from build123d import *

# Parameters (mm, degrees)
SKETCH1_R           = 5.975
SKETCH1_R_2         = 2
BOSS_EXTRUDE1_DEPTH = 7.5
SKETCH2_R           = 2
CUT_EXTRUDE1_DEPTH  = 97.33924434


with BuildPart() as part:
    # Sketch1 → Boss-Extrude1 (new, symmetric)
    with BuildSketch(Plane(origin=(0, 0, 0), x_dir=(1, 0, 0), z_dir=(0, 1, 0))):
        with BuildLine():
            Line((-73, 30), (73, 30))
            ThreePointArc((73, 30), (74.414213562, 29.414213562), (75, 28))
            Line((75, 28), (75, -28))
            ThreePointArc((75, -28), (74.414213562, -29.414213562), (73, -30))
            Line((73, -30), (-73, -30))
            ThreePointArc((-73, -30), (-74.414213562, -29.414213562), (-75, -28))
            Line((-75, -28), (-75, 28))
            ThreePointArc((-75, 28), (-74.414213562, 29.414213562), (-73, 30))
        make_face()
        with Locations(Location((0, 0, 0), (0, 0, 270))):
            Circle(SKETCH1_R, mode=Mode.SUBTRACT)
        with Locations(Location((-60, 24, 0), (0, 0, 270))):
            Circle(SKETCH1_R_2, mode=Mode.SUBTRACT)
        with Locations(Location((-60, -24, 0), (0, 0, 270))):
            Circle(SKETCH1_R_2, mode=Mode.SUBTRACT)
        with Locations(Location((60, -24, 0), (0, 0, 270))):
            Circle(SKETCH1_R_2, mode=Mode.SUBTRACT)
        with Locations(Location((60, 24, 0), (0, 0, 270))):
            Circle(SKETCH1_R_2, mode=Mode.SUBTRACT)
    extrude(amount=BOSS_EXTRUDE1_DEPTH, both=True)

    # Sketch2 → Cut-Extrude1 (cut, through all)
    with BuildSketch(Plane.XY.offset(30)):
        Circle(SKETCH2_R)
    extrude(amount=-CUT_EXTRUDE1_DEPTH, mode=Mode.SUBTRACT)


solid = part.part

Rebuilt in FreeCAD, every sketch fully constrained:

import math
import FreeCAD as App
import Part
import Sketcher
from FreeCAD import Vector
Q = App.Units.Quantity

doc = App.newDocument("Part")
body = doc.addObject("PartDesign::Body", "Body")

# Sketch on XZ plane
sketch1 = body.newObject("Sketcher::SketchObject", "Sketch")
sketch1.AttachmentSupport = (doc.getObject("XZ_Plane"), [""])
sketch1.MapMode = "FlatFace"
sketch1.addGeometry([
    Part.LineSegment(Vector(73, -30, 0), Vector(-73, -30, 0)),  # 0
    Part.ArcOfCircle(Part.Circle(Vector(-73, -28, 0), Vector(0, 0, 1), 2), math.radians(-180), math.radians(-90)),  # 1
    Part.LineSegment(Vector(-75, -28, 0), Vector(-75, 28, 0)),  # 2
    Part.ArcOfCircle(Part.Circle(Vector(-73, 28, 0), Vector(0, 0, 1), 2), math.radians(90), math.radians(180)),  # 3
    Part.LineSegment(Vector(-73, 30, 0), Vector(73, 30, 0)),  # 4
    Part.ArcOfCircle(Part.Circle(Vector(73, 28, 0), Vector(0, 0, 1), 2), math.radians(0), math.radians(90)),  # 5
    Part.LineSegment(Vector(75, 28, 0), Vector(75, -28, 0)),  # 6
    Part.ArcOfCircle(Part.Circle(Vector(73, -28, 0), Vector(0, 0, 1), 2), math.radians(-90), math.radians(0)),  # 7
    Part.Circle(Vector(60, 24, 0), Vector(0, 0, 1), 2),  # 8
    Part.Circle(Vector(-60, 24, 0), Vector(0, 0, 1), 2),  # 9
    Part.Circle(Vector(60, -24, 0), Vector(0, 0, 1), 2),  # 10
    Part.Circle(Vector(0, 0, 0), Vector(0, 0, 1), 6),  # 11
    Part.Circle(Vector(-60, -24, 0), Vector(0, 0, 1), 2),  # 12
], False)
sketch1.addConstraint([
    Sketcher.Constraint("Tangent", 0, 2, 1, 2),
    Sketcher.Constraint("Tangent", 1, 1, 2, 1),
    Sketcher.Constraint("Tangent", 2, 2, 3, 2),
    Sketcher.Constraint("Tangent", 3, 1, 4, 1),
    Sketcher.Constraint("Tangent", 4, 2, 5, 2),
    Sketcher.Constraint("Tangent", 5, 1, 6, 1),
    Sketcher.Constraint("Tangent", 6, 2, 7, 2),
    Sketcher.Constraint("Tangent", 7, 1, 0, 1),
    Sketcher.Constraint("Horizontal", 0),
    Sketcher.Constraint("Vertical", 2),
    Sketcher.Constraint("Horizontal", 4),
    Sketcher.Constraint("Vertical", 6),
    Sketcher.Constraint("Coincident", 11, 3, -1, 1),
    Sketcher.Constraint("Equal", 1, 3),
    Sketcher.Constraint("Equal", 3, 5),
    Sketcher.Constraint("Equal", 5, 7),
    Sketcher.Constraint("Equal", 7, 8),
    Sketcher.Constraint("Equal", 8, 9),
    Sketcher.Constraint("Equal", 9, 10),
    Sketcher.Constraint("Equal", 10, 12),
    Sketcher.Constraint("Symmetric", 1, 3, 5, 3, -1, 1),
    Sketcher.Constraint("Symmetric", 9, 3, 10, 3, -1, 1),
    Sketcher.Constraint("Symmetric", 8, 3, 12, 3, -1, 1),
    Sketcher.Constraint("Symmetric", 8, 3, 9, 3, -2),
    Sketcher.Constraint("Diameter", 8, Q("4 mm")),
    Sketcher.Constraint("Diameter", 11, Q("11.95 mm")),
    Sketcher.Constraint("DistanceX", 0, 2, 0, 1, Q("146 mm")),
    Sketcher.Constraint("DistanceY", 2, 1, 2, 2, Q("56 mm")),
    Sketcher.Constraint("DistanceX", -1, 1, 8, 3, Q("60 mm")),
    Sketcher.Constraint("DistanceY", -1, 1, 8, 3, Q("24 mm")),
])
pad1 = body.newObject("PartDesign::Pad", "Pad")
pad1.Profile = sketch1
pad1.Length = 15
pad1.Midplane = True

# Sketch on XY plane
sketch2 = body.newObject("Sketcher::SketchObject", "Sketch001")
sketch2.AttachmentSupport = (doc.getObject("XY_Plane"), [""])
sketch2.MapMode = "FlatFace"
sketch2.AttachmentOffset = App.Placement(Vector(0, 0, 30), App.Rotation())
sketch2.addGeometry(Part.Circle(Vector(0, 0, 0), Vector(0, 0, 1), 2), False)
sketch2.addConstraint([
    Sketcher.Constraint("Coincident", 0, 3, -1, 1),
    Sketcher.Constraint("Diameter", 0, Q("4 mm")),
])
pocket1 = body.newObject("PartDesign::Pocket", "Pocket")
pocket1.Profile = sketch2
pocket1.Type = "ThroughAll"

doc.recompute()
